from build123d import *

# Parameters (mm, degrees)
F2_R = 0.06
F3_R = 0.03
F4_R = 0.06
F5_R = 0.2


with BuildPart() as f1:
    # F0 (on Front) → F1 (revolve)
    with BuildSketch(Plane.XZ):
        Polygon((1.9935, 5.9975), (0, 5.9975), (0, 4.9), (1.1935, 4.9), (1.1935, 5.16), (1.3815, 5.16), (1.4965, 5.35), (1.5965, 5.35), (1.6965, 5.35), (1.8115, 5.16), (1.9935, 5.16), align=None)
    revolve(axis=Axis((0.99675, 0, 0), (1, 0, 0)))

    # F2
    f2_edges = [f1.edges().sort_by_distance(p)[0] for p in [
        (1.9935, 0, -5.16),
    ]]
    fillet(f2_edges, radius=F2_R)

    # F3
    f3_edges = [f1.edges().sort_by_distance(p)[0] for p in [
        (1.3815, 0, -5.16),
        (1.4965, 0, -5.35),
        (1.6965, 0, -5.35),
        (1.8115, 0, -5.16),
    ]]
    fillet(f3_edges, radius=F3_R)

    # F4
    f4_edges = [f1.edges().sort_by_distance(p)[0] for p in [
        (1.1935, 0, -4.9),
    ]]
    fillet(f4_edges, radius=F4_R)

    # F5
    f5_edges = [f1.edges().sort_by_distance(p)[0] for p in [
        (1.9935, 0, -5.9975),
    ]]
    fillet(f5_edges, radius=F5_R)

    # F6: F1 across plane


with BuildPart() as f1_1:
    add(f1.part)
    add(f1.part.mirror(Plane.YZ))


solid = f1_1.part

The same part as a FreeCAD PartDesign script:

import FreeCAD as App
import Part
import Sketcher
Q = App.Units.Quantity


def edges_at(feature, points):
    """Names of the edges that pass closest to the given points."""
    edges = feature.Shape.Edges
    near = lambda p: min(range(len(edges)), key=lambda i: edges[i].distToShape(Part.Vertex(*p))[0])
    return sorted({f"Edge{near(p) + 1}" for p in points})

doc = App.newDocument("Part")
params = doc.addObject("Spreadsheet::Sheet", "Params")
for row, (alias, value) in enumerate([
    ("sketch1_width", "0.2 mm"),
    ("sketch1_height", "0.26 mm"),
    ("revolution_angle", "360 deg"),
    ("fillet_radius", "0.06 mm"),
    ("fillet2_radius", "0.03 mm"),
    ("fillet3_radius", "0.06 mm"),
    ("fillet4_radius", "0.2 mm"),
], start=1):
    params.set(f"A{row}", alias)
    params.set(f"B{row}", "=" + value)
    params.setAlias(f"B{row}", alias)

body = doc.addObject("PartDesign::Body", "Body")

# Sketch on XZ plane
sketch1 = doc.addObject("Sketcher::SketchObject", "Sketch")
body.addObject(sketch1)
sketch1.AttachmentSupport = (doc.XZ_Plane, [""])
sketch1.MapMode = "FlatFace"
sketch1.addGeometry([
    Part.LineSegment(App.Vector(1.9935, 5.9975, 0), App.Vector(0, 5.9975, 0)),  # 0
    Part.LineSegment(App.Vector(0, 5.9975, 0), App.Vector(0, 4.9, 0)),  # 1
    Part.LineSegment(App.Vector(0, 4.9, 0), App.Vector(1.1935, 4.9, 0)),  # 2
    Part.LineSegment(App.Vector(1.1935, 4.9, 0), App.Vector(1.1935, 5.16, 0)),  # 3
    Part.LineSegment(App.Vector(1.1935, 5.16, 0), App.Vector(1.3815, 5.16, 0)),  # 4
    Part.LineSegment(App.Vector(1.3815, 5.16, 0), App.Vector(1.4965, 5.35, 0)),  # 5
    Part.LineSegment(App.Vector(1.4965, 5.35, 0), App.Vector(1.6965, 5.35, 0)),  # 6
    Part.LineSegment(App.Vector(1.6965, 5.35, 0), App.Vector(1.8115, 5.16, 0)),  # 7
    Part.LineSegment(App.Vector(1.8115, 5.16, 0), App.Vector(1.9935, 5.16, 0)),  # 8
    Part.LineSegment(App.Vector(1.9935, 5.16, 0), App.Vector(1.9935, 5.9975, 0)),  # 9
], False)
sketch1.addConstraint([
    Sketcher.Constraint("Coincident", 0, 2, 1, 1),
    Sketcher.Constraint("Coincident", 1, 2, 2, 1),
    Sketcher.Constraint("Coincident", 2, 2, 3, 1),
    Sketcher.Constraint("Coincident", 3, 2, 4, 1),
    Sketcher.Constraint("Coincident", 4, 2, 5, 1),
    Sketcher.Constraint("Coincident", 5, 2, 6, 1),
    Sketcher.Constraint("Coincident", 6, 2, 7, 1),
    Sketcher.Constraint("Coincident", 7, 2, 8, 1),
    Sketcher.Constraint("Coincident", 8, 2, 9, 1),
    Sketcher.Constraint("Coincident", 9, 2, 0, 1),
    Sketcher.Constraint("Horizontal", 0),
    Sketcher.Constraint("Vertical", 1),
    Sketcher.Constraint("Horizontal", 2),
    Sketcher.Constraint("Vertical", 3),
    Sketcher.Constraint("Horizontal", 4),
    Sketcher.Constraint("Horizontal", 6),
    Sketcher.Constraint("Horizontal", 8),
    Sketcher.Constraint("Vertical", 9),
    Sketcher.Constraint("PointOnObject", 0, 2, -2),
    Sketcher.Constraint("Horizontal", 4, 2, 7, 2),
    Sketcher.Constraint("Equal", 5, 7),
    Sketcher.Constraint("DistanceX", 6, 1, 6, 2, Q("0.2 mm")),
    Sketcher.Constraint("DistanceY", 3, 1, 3, 2, Q("0.26 mm")),
    Sketcher.Constraint("DistanceY", -1, 1, 1, 2, Q("4.9 mm")),
    Sketcher.Constraint("DistanceX", 3, 2, 8, 2, Q("0.8 mm")),
    Sketcher.Constraint("DistanceX", 4, 1, 4, 2, Q("0.188 mm")),
    Sketcher.Constraint("DistanceX", 8, 1, 8, 2, Q("0.182 mm")),
    Sketcher.Constraint("DistanceY", -1, 1, 5, 2, Q("5.35 mm")),
    Sketcher.Constraint("DistanceX", 0, 2, 0, 1, Q("1.9935 mm")),
    Sketcher.Constraint("DistanceY", 1, 2, 1, 1, Q("1.0975 mm")),
])
sketch1.setExpression("Constraints[21]", "Params.sketch1_width")
sketch1.setExpression("Constraints[22]", "Params.sketch1_height")
revolution = doc.addObject("PartDesign::Revolution", "Revolution")
body.addObject(revolution)
revolution.Profile = sketch1
revolution.ReferenceAxis = (sketch1, ["H_Axis"])
revolution.setExpression("Angle", "Params.revolution_angle")
doc.recompute()

fillet = doc.addObject("PartDesign::Fillet", "Fillet")
body.addObject(fillet)
fillet.Base = (revolution, edges_at(revolution, [(1.994, 0, -5.16)]))
fillet.setExpression("Radius", "Params.fillet_radius")
doc.recompute()

fillet2 = doc.addObject("PartDesign::Fillet", "Fillet001")
body.addObject(fillet2)
fillet2.Base = (fillet, edges_at(fillet, [
    (1.381, 0, -5.16),
    (1.496, 0, -5.35),
    (1.696, 0, -5.35),
    (1.812, 0, -5.16),
]))
fillet2.setExpression("Radius", "Params.fillet2_radius")
doc.recompute()

fillet3 = doc.addObject("PartDesign::Fillet", "Fillet002")
body.addObject(fillet3)
fillet3.Base = (fillet2, edges_at(fillet2, [(1.194, 0, -4.9)]))
fillet3.setExpression("Radius", "Params.fillet3_radius")
doc.recompute()

fillet4 = doc.addObject("PartDesign::Fillet", "Fillet003")
body.addObject(fillet4)
fillet4.Base = (fillet3, edges_at(fillet3, [(1.994, 0, -5.997)]))
fillet4.setExpression("Radius", "Params.fillet4_radius")
body2 = doc.addObject("PartDesign::Body", "Body001")
doc.recompute()

body2.BaseFeature = body
doc.recompute()

mirroring = doc.addObject("Part::Mirroring", "Mirroring")
mirroring.Source = body
mirroring.Base = App.Vector(0, 0, 0)
mirroring.Normal = App.Vector(1, 0, 0)
body3 = doc.addObject("PartDesign::Body", "Body002")
body3.BaseFeature = mirroring
boolean = doc.addObject("PartDesign::Boolean", "Boolean")
body2.addObject(boolean)
boolean.Type = "Fuse"
boolean.addObjects([body3])
doc.recompute()
mirroring.Visibility = False

doc.recompute()
